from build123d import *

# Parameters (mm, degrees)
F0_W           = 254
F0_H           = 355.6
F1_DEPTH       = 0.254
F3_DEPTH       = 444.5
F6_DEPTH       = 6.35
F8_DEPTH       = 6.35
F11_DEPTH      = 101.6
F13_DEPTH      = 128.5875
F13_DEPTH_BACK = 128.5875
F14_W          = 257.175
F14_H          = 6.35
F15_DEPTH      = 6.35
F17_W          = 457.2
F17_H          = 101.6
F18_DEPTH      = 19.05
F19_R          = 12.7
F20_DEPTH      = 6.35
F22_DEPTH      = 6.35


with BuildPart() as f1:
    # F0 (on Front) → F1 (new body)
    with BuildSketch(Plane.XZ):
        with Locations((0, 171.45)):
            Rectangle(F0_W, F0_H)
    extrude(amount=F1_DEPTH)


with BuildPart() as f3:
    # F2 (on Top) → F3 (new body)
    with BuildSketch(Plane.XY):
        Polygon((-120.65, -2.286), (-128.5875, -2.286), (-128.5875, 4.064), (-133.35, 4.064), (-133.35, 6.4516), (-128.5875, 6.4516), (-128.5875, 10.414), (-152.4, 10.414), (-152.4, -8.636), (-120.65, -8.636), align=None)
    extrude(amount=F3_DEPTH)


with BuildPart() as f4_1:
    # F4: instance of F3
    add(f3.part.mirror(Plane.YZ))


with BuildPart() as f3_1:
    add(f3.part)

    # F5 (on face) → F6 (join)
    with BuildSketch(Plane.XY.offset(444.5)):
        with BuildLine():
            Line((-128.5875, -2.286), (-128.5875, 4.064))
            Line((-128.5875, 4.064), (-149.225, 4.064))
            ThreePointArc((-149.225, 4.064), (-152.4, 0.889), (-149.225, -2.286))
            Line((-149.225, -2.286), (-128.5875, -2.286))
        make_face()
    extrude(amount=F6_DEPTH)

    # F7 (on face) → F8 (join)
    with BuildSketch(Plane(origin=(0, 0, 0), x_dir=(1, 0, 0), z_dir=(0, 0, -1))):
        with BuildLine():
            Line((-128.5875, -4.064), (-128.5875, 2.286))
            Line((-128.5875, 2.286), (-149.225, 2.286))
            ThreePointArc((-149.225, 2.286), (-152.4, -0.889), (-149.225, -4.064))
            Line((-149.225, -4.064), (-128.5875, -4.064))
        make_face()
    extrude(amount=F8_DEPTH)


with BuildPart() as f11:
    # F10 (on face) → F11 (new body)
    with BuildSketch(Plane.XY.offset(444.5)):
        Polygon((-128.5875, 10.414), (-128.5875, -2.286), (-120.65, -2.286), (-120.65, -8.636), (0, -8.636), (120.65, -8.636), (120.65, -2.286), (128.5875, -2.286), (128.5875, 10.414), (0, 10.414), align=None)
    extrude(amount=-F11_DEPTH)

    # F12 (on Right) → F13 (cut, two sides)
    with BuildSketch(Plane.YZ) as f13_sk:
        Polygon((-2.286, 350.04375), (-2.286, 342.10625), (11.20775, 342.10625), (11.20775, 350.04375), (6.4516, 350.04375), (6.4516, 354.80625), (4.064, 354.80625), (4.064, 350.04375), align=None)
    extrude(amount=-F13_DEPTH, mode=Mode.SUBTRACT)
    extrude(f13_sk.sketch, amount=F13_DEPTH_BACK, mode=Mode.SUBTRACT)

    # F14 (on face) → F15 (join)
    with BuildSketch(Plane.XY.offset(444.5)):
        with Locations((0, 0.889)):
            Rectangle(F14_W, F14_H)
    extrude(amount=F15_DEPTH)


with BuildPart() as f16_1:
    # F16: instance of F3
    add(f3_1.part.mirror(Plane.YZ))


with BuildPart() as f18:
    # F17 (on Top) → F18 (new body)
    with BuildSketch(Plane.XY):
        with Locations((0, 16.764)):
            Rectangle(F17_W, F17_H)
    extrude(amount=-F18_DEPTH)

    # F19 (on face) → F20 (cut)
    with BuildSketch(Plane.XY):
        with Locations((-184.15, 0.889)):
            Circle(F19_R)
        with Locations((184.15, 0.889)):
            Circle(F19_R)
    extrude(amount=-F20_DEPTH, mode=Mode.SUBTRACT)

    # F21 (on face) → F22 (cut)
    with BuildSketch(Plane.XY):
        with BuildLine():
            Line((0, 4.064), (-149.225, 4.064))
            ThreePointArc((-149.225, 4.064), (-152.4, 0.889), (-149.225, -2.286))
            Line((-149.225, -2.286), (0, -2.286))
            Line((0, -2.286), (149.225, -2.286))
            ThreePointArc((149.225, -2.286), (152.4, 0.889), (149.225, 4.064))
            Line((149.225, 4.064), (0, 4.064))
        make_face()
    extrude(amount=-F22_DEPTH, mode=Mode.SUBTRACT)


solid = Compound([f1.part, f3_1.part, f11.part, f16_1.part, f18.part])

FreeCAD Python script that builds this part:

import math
import FreeCAD as App
import Part
import Sketcher
Q = App.Units.Quantity


def add_polygon(sketch, points):
    """Adds a closed chain of lines whose ends are joined by coincident constraints."""
    first, n = sketch.GeometryCount, len(points)
    for a, b in zip(points, points[1:] + points[:1]):
        sketch.addGeometry(Part.LineSegment(App.Vector(*a, 0), App.Vector(*b, 0)), False)
    for i in range(n):
        sketch.addConstraint(Sketcher.Constraint("Coincident", first + i, 2, first + (i + 1) % n, 1))

doc = App.newDocument("Part")
params = doc.addObject("Spreadsheet::Sheet", "Params")
for row, (alias, value) in enumerate([
    ("sketch1_width", "10 in"),
    ("sketch1_height", "14 in"),
    ("pad1_length", "0.01 in"),
    ("sketch2_width", "1.25 in"),
    ("sketch2_height", "0.25 in"),
    ("sketch2_height2", "0.75 in"),
    ("sketch2_width2", "0.3125 in"),
    ("sketch2_height3", "0.094 in"),
    ("pad2_length", "17.5 in"),
    ("sketch3_radius", "0.125 in"),
    ("sketch3_width", "0.8125 in"),
    ("pad3_length", "0.25 in"),
    ("sketch4_radius", "0.125 in"),
    ("sketch4_width", "0.8125 in"),
    ("pad4_length", "0.25 in"),
    ("sketch5_width", "9.5 in"),
    ("sketch5_height", "0.5 in"),
    ("sketch5_height2", "0.25 in"),
    ("sketch5_width2", "0.3125 in"),
    ("pad5_length", "4 in"),
    ("sketch6_width", "0.25 in"),
    ("sketch6_width2", "0.53125 in"),
    ("sketch6_width3", "0.094 in"),
    ("sketch6_height", "0.3125 in"),
    ("sketch7_height", "0.25 in"),
    ("sketch7_width", "10.125 in"),
    ("pad6_length", "0.25 in"),
    ("sketch8_width", "18 in"),
    ("sketch8_height", "4 in"),
    ("pad7_length", "0.75 in"),
    ("sketch9_diameter", "1 in"),
    ("pocket2_length", "0.25 in"),
    ("sketch10_radius", "0.125 in"),
    ("sketch10_width", "11.75 in"),
    ("pocket3_length", "0.25 in"),
], start=1):
    params.set(f"A{row}", alias)
    params.set(f"B{row}", "=" + value)
    params.setAlias(f"B{row}", alias)

body = doc.addObject("PartDesign::Body", "Body")

# Sketch on XZ plane
sketch1 = body.newObject("Sketcher::SketchObject", "Sketch")
sketch1.AttachmentSupport = (doc.getObject("XZ_Plane"), [""])
sketch1.MapMode = "FlatFace"
add_polygon(sketch1, [(-127, 349.25), (-127, -6.35), (127, -6.35), (127, 349.25)])  # lines 0-3
sketch1.addConstraint(Sketcher.Constraint("Vertical", 0))
sketch1.addConstraint(Sketcher.Constraint("Horizontal", 1))
sketch1.addConstraint(Sketcher.Constraint("Vertical", 2))
sketch1.addConstraint(Sketcher.Constraint("Horizontal", 3))
sketch1.addConstraint(Sketcher.Constraint("DistanceX", 1, 1, 1, 2, Q("10 in")))
sketch1.addConstraint(Sketcher.Constraint("DistanceY", 0, 2, 0, 1, Q("14 in")))
sketch1.addConstraint(Sketcher.Constraint("DistanceX", 0, 2, -1, 1, Q("5 in")))
sketch1.addConstraint(Sketcher.Constraint("DistanceY", 0, 2, -1, 1, Q("0.25 in")))
sketch1.setExpression("Constraints[8]", "Params.sketch1_width")
sketch1.setExpression("Constraints[9]", "Params.sketch1_height")
pad1 = body.newObject("PartDesign::Pad", "Pad")
pad1.Profile = sketch1
pad1.setExpression("Length", "Params.pad1_length")
body2 = doc.addObject("PartDesign::Body", "Body001")

# Sketch on XY plane
sketch2 = body2.newObject("Sketcher::SketchObject", "Sketch001")
sketch2.AttachmentSupport = (doc.getObject("XY_Plane001"), [""])
sketch2.MapMode = "FlatFace"
add_polygon(sketch2, [(-120.65, -2.286), (-128.5875, -2.286), (-128.5875, 4.064), (-133.35, 4.064), (-133.35, 6.4516), (-128.5875, 6.4516), (-128.5875, 10.414), (-152.4, 10.414), (-152.4, -8.636), (-120.65, -8.636)])  # lines 0-9
sketch2.addConstraint(Sketcher.Constraint("Horizontal", 0))
sketch2.addConstraint(Sketcher.Constraint("Vertical", 1))
sketch2.addConstraint(Sketcher.Constraint("Horizontal", 2))
sketch2.addConstraint(Sketcher.Constraint("Vertical", 3))
sketch2.addConstraint(Sketcher.Constraint("Horizontal", 4))
sketch2.addConstraint(Sketcher.Constraint("Vertical", 5))
sketch2.addConstraint(Sketcher.Constraint("Horizontal", 6))
sketch2.addConstraint(Sketcher.Constraint("Vertical", 7))
sketch2.addConstraint(Sketcher.Constraint("Horizontal", 8))
sketch2.addConstraint(Sketcher.Constraint("Vertical", 9))
sketch2.addConstraint(Sketcher.Constraint("Vertical", 1, 2, 4, 2))
sketch2.addConstraint(Sketcher.Constraint("Equal", 1, 9))
sketch2.addConstraint(Sketcher.Constraint("DistanceX", 6, 2, -1, 1, Q("6 in")))
sketch2.addConstraint(Sketcher.Constraint("DistanceX", 8, 1, 8, 2, Q("1.25 in")))
sketch2.addConstraint(Sketcher.Constraint("DistanceY", 1, 1, 1, 2, Q("0.25 in")))
sketch2.addConstraint(Sketcher.Constraint("DistanceY", 7, 2, 7, 1, Q("0.75 in")))
sketch2.addConstraint(Sketcher.Constraint("DistanceX", 2, 2, 8, 2, Q("0.5 in")))
sketch2.addConstraint(Sketcher.Constraint("DistanceX", 0, 2, 0, 1, Q("0.3125 in")))
sketch2.addConstraint(Sketcher.Constraint("DistanceY", 3, 1, 3, 2, Q("0.094 in")))
sketch2.addConstraint(Sketcher.Constraint("DistanceY", 0, 2, -1, 1, Q("0.09 in")))
sketch2.setExpression("Constraints[23]", "Params.sketch2_width")
sketch2.setExpression("Constraints[24]", "Params.sketch2_height")
sketch2.setExpression("Constraints[25]", "Params.sketch2_height2")
sketch2.setExpression("Constraints[27]", "Params.sketch2_width2")
sketch2.setExpression("Constraints[28]", "Params.sketch2_height3")
pad2 = body2.newObject("PartDesign::Pad", "Pad001")
pad2.Profile = sketch2
pad2.setExpression("Length", "Params.pad2_length")
body3 = doc.addObject("PartDesign::Body", "Body002")
doc.recompute()

mirroring = doc.addObject("Part::Mirroring", "Mirroring")
mirroring.Source = body2
mirroring.Base = App.Vector(0, 0, 0)
mirroring.Normal = App.Vector(1, 0, 0)
body3.BaseFeature = mirroring
doc.recompute()

# Sketch on XY plane
sketch3 = body2.newObject("Sketcher::SketchObject", "Sketch002")
sketch3.AttachmentSupport = (doc.getObject("XY_Plane001"), [""])
sketch3.MapMode = "FlatFace"
sketch3.AttachmentOffset = App.Placement(App.Vector(0, 0, 17.5 * 25.4), App.Rotation())
sketch3.addGeometry(Part.LineSegment(App.Vector(-128.5875, -2.286, 0), App.Vector(-128.5875, 4.064, 0)), False)
sketch3.addGeometry(Part.LineSegment(App.Vector(-128.5875, 4.064, 0), App.Vector(-149.225, 4.064, 0)), False)
sketch3.addGeometry(Part.ArcOfCircle(Part.Circle(App.Vector(-149.225, 0.889, 0), App.Vector(0, 0, 1), 3.175), math.radians(90), math.radians(270)), False)
sketch3.addGeometry(Part.LineSegment(App.Vector(-149.225, -2.286, 0), App.Vector(-128.5875, -2.286, 0)), False)
sketch3.addConstraint(Sketcher.Constraint("Coincident", 0, 2, 1, 1))
sketch3.addConstraint(Sketcher.Constraint("Tangent", 1, 2, 2, 1))
sketch3.addConstraint(Sketcher.Constraint("Tangent", 2, 2, 3, 1))
sketch3.addConstraint(Sketcher.Constraint("Coincident", 3, 2, 0, 1))
sketch3.addConstraint(Sketcher.Constraint("Vertical", 0))
sketch3.addConstraint(Sketcher.Constraint("Horizontal", 1))
sketch3.addConstraint(Sketcher.Constraint("Horizontal", 3))
sketch3.addConstraint(Sketcher.Constraint("Radius", 2, Q("0.125 in")))
sketch3.addConstraint(Sketcher.Constraint("DistanceX", 1, 2, 1, 1, Q("0.8125 in")))
sketch3.addConstraint(Sketcher.Constraint("DistanceY", -1, 1, 0, 2, Q("0.16 in")))
sketch3.addConstraint(Sketcher.Constraint("DistanceX", 2, 3, -1, 1, Q("5.875 in")))
sketch3.setExpression("Constraints[7]", "Params.sketch3_radius")
sketch3.setExpression("Constraints[8]", "Params.sketch3_width")
pad3 = body2.newObject("PartDesign::Pad", "Pad002")
pad3.Profile = sketch3
pad3.setExpression("Length", "Params.pad3_length")

# Sketch on XY plane
sketch4 = body2.newObject("Sketcher::SketchObject", "Sketch003")
sketch4.AttachmentSupport = (doc.getObject("XY_Plane001"), [""])
sketch4.MapMode = "FlatFace"
sketch4.addGeometry(Part.LineSegment(App.Vector(-128.5875, 4.064, 0), App.Vector(-128.5875, -2.286, 0)), False)
sketch4.addGeometry(Part.LineSegment(App.Vector(-128.5875, -2.286, 0), App.Vector(-149.225, -2.286, 0)), False)
sketch4.addGeometry(Part.ArcOfCircle(Part.Circle(App.Vector(-149.225, 0.889, 0), App.Vector(0, 0, 1), 3.175), math.radians(90), math.radians(270)), False)
sketch4.addGeometry(Part.LineSegment(App.Vector(-149.225, 4.064, 0), App.Vector(-128.5875, 4.064, 0)), False)
sketch4.addConstraint(Sketcher.Constraint("Coincident", 0, 2, 1, 1))
sketch4.addConstraint(Sketcher.Constraint("Tangent", 1, 2, 2, 2))
sketch4.addConstraint(Sketcher.Constraint("Tangent", 2, 1, 3, 1))
sketch4.addConstraint(Sketcher.Constraint("Coincident", 3, 2, 0, 1))
sketch4.addConstraint(Sketcher.Constraint("Vertical", 0))
sketch4.addConstraint(Sketcher.Constraint("Horizontal", 1))
sketch4.addConstraint(Sketcher.Constraint("Horizontal", 3))
sketch4.addConstraint(Sketcher.Constraint("Radius", 2, Q("0.125 in")))
sketch4.addConstraint(Sketcher.Constraint("DistanceX", 1, 2, 1, 1, Q("0.8125 in")))
sketch4.addConstraint(Sketcher.Constraint("DistanceY", 0, 2, -1, 1, Q("0.09 in")))
sketch4.addConstraint(Sketcher.Constraint("DistanceX", 2, 3, -1, 1, Q("5.875 in")))
sketch4.setExpression("Constraints[7]", "Params.sketch4_radius")
sketch4.setExpression("Constraints[8]", "Params.sketch4_width")
pad4 = body2.newObject("PartDesign::Pad", "Pad003")
pad4.Profile = sketch4
pad4.setExpression("Length", "Params.pad4_length")
pad4.Reversed = True
body4 = doc.addObject("PartDesign::Body", "Body003")

# Sketch on XY plane
sketch5 = body4.newObject("Sketcher::SketchObject", "Sketch004")
sketch5.AttachmentSupport = (doc.getObject("XY_Plane003"), [""])
sketch5.MapMode = "FlatFace"
sketch5.AttachmentOffset = App.Placement(App.Vector(0, 0, 17.5 * 25.4), App.Rotation())
add_polygon(sketch5, [(-128.5875, 10.414), (-128.5875, -2.286), (-120.65, -2.286), (-120.65, -8.636), (120.65, -8.636), (120.65, -2.286), (128.5875, -2.286), (128.5875, 10.414)])  # lines 0-7
sketch5.addConstraint(Sketcher.Constraint("Vertical", 0))
sketch5.addConstraint(Sketcher.Constraint("Horizontal", 1))
sketch5.addConstraint(Sketcher.Constraint("Vertical", 2))
sketch5.addConstraint(Sketcher.Constraint("Horizontal", 3))
sketch5.addConstraint(Sketcher.Constraint("Vertical", 4))
sketch5.addConstraint(Sketcher.Constraint("Horizontal", 5))
sketch5.addConstraint(Sketcher.Constraint("Vertical", 6))
sketch5.addConstraint(Sketcher.Constraint("Horizontal", 7))
sketch5.addConstraint(Sketcher.Constraint("Symmetric", 1, 2, 4, 2, -2))
sketch5.addConstraint(Sketcher.Constraint("Equal", 1, 5))
sketch5.addConstraint(Sketcher.Constraint("DistanceX", 3, 1, 3, 2, Q("9.5 in")))
sketch5.addConstraint(Sketcher.Constraint("DistanceY", 0, 2, 0, 1, Q("0.5 in")))
sketch5.addConstraint(Sketcher.Constraint("DistanceY", 2, 2, 2, 1, Q("0.25 in")))
sketch5.addConstraint(Sketcher.Constraint("DistanceX", 1, 1, 1, 2, Q("0.3125 in")))
sketch5.addConstraint(Sketcher.Constraint("DistanceY", 0, 2, -1, 1, Q("0.09 in")))
sketch5.setExpression("Constraints[18]", "Params.sketch5_width")
sketch5.setExpression("Constraints[19]", "Params.sketch5_height")
sketch5.setExpression("Constraints[20]", "Params.sketch5_height2")
sketch5.setExpression("Constraints[21]", "Params.sketch5_width2")
pad5 = body4.newObject("PartDesign::Pad", "Pad004")
pad5.Profile = sketch5
pad5.setExpression("Length", "Params.pad5_length")
pad5.Reversed = True

# Sketch on YZ plane
sketch6 = body4.newObject("Sketcher::SketchObject", "Sketch005")
sketch6.AttachmentSupport = (doc.getObject("YZ_Plane003"), [""])
sketch6.MapMode = "FlatFace"
add_polygon(sketch6, [(-2.286, 350.04375), (-2.286, 342.10625), (11.20775, 342.10625), (11.20775, 350.04375), (6.4516, 350.04375), (6.4516, 354.80625), (4.064, 354.80625), (4.064, 350.04375)])  # lines 0-7
sketch6.addConstraint(Sketcher.Constraint("Vertical", 0))
sketch6.addConstraint(Sketcher.Constraint("Horizontal", 1))
sketch6.addConstraint(Sketcher.Constraint("Vertical", 2))
sketch6.addConstraint(Sketcher.Constraint("Horizontal", 3))
sketch6.addConstraint(Sketcher.Constraint("Vertical", 4))
sketch6.addConstraint(Sketcher.Constraint("Horizontal", 5))
sketch6.addConstraint(Sketcher.Constraint("Vertical", 6))
sketch6.addConstraint(Sketcher.Constraint("Horizontal", 7))
sketch6.addConstraint(Sketcher.Constraint("Horizontal", 3, 2, 6, 2))
sketch6.addConstraint(Sketcher.Constraint("DistanceX", 7, 2, 7, 1, Q("0.25 in")))
sketch6.addConstraint(Sketcher.Constraint("DistanceY", 1, 2, 4, 2, Q("0.5 in")))
sketch6.addConstraint(Sketcher.Constraint("DistanceX", 1, 1, 1, 2, Q("0.53125 in")))
sketch6.addConstraint(Sketcher.Constraint("DistanceX", 5, 2, 5, 1, Q("0.094 in")))
sketch6.addConstraint(Sketcher.Constraint("DistanceY", 0, 2, 0, 1, Q("0.3125 in")))
sketch6.addConstraint(Sketcher.Constraint("DistanceX", 0, 2, -1, 1, Q("0.09 in")))
sketch6.addConstraint(Sketcher.Constraint("DistanceY", -1, 1, 0, 2, Q("13.46875 in")))
sketch6.setExpression("Constraints[17]", "Params.sketch6_width")
sketch6.setExpression("Constraints[19]", "Params.sketch6_width2")
sketch6.setExpression("Constraints[20]", "Params.sketch6_width3")
sketch6.setExpression("Constraints[21]", "Params.sketch6_height")
pocket1 = body4.newObject("PartDesign::Pocket", "Pocket")
pocket1.Profile = sketch6
pocket1.Type = "ThroughAll"
pocket1.Midplane = True

# Sketch on XY plane
sketch7 = body4.newObject("Sketcher::SketchObject", "Sketch006")
sketch7.AttachmentSupport = (doc.getObject("XY_Plane003"), [""])
sketch7.MapMode = "FlatFace"
sketch7.AttachmentOffset = App.Placement(App.Vector(0, 0, 17.5 * 25.4), App.Rotation())
add_polygon(sketch7, [(-128.5875, 4.064), (-128.5875, -2.286), (128.5875, -2.286), (128.5875, 4.064)])  # lines 0-3
sketch7.addConstraint(Sketcher.Constraint("Vertical", 0))
sketch7.addConstraint(Sketcher.Constraint("Horizontal", 1))
sketch7.addConstraint(Sketcher.Constraint("Vertical", 2))
sketch7.addConstraint(Sketcher.Constraint("Horizontal", 3))
sketch7.addConstraint(Sketcher.Constraint("DistanceY", 0, 2, 0, 1, Q("0.25 in")))
sketch7.addConstraint(Sketcher.Constraint("DistanceX", 1, 1, 1, 2, Q("10.125 in")))
sketch7.addConstraint(Sketcher.Constraint("DistanceY", 0, 2, -1, 1, Q("0.09 in")))
sketch7.addConstraint(Sketcher.Constraint("DistanceX", 0, 2, -1, 1, Q("5.0625 in")))
sketch7.setExpression("Constraints[8]", "Params.sketch7_height")
sketch7.setExpression("Constraints[9]", "Params.sketch7_width")
pad6 = body4.newObject("PartDesign::Pad", "Pad005")
pad6.Profile = sketch7
pad6.setExpression("Length", "Params.pad6_length")
body5 = doc.addObject("PartDesign::Body", "Body004")
doc.recompute()

mirroring2 = doc.addObject("Part::Mirroring", "Mirroring001")
mirroring2.Source = body2
mirroring2.Base = App.Vector(0, 0, 0)
mirroring2.Normal = App.Vector(1, 0, 0)
body5.BaseFeature = mirroring2
doc.recompute()
body6 = doc.addObject("PartDesign::Body", "Body005")

# Sketch on XY plane
sketch8 = body6.newObject("Sketcher::SketchObject", "Sketch007")
sketch8.AttachmentSupport = (doc.getObject("XY_Plane005"), [""])
sketch8.MapMode = "FlatFace"
add_polygon(sketch8, [(-228.6, 67.564), (-228.6, -34.036), (228.6, -34.036), (228.6, 67.564)])  # lines 0-3
sketch8.addConstraint(Sketcher.Constraint("Vertical", 0))
sketch8.addConstraint(Sketcher.Constraint("Horizontal", 1))
sketch8.addConstraint(Sketcher.Constraint("Vertical", 2))
sketch8.addConstraint(Sketcher.Constraint("Horizontal", 3))
sketch8.addConstraint(Sketcher.Constraint("DistanceX", 1, 1, 1, 2, Q("18 in")))
sketch8.addConstraint(Sketcher.Constraint("DistanceY", 0, 2, 0, 1, Q("4 in")))
sketch8.addConstraint(Sketcher.Constraint("DistanceX", 0, 2, -1, 1, Q("9 in")))
sketch8.addConstraint(Sketcher.Constraint("DistanceY", 0, 2, -1, 1, Q("1.34 in")))
sketch8.setExpression("Constraints[8]", "Params.sketch8_width")
sketch8.setExpression("Constraints[9]", "Params.sketch8_height")
pad7 = body6.newObject("PartDesign::Pad", "Pad006")
pad7.Profile = sketch8
pad7.setExpression("Length", "Params.pad7_length")
pad7.Reversed = True

# Sketch on XY plane
sketch9 = body6.newObject("Sketcher::SketchObject", "Sketch008")
sketch9.AttachmentSupport = (doc.getObject("XY_Plane005"), [""])
sketch9.MapMode = "FlatFace"
sketch9.addGeometry(Part.Circle(App.Vector(-184.15, 0.889, 0), App.Vector(0, 0, 1), 12.7), False)
sketch9.addGeometry(Part.Circle(App.Vector(184.15, 0.889, 0), App.Vector(0, 0, 1), 12.7), False)
sketch9.addConstraint(Sketcher.Constraint("Equal", 0, 1))
sketch9.addConstraint(Sketcher.Constraint("Symmetric", 0, 3, 1, 3, -2))
sketch9.addConstraint(Sketcher.Constraint("Diameter", 0, Q("1 in")))
sketch9.addConstraint(Sketcher.Constraint("DistanceX", 0, 3, 1, 3, Q("14.5 in")))
sketch9.addConstraint(Sketcher.Constraint("DistanceY", -1, 1, 0, 3, Q("0.035 in")))
sketch9.setExpression("Constraints[2]", "Params.sketch9_diameter")
pocket2 = body6.newObject("PartDesign::Pocket", "Pocket001")
pocket2.Profile = sketch9
pocket2.setExpression("Length", "Params.pocket2_length")

# Sketch on XY plane
sketch10 = body6.newObject("Sketcher::SketchObject", "Sketch009")
sketch10.AttachmentSupport = (doc.getObject("XY_Plane005"), [""])
sketch10.MapMode = "FlatFace"
sketch10.addGeometry(Part.ArcOfCircle(Part.Circle(App.Vector(-149.225, 0.889, 0), App.Vector(0, 0, 1), 3.175), math.radians(90), math.radians(270)), False)
sketch10.addGeometry(Part.LineSegment(App.Vector(-149.225, -2.286, 0), App.Vector(149.225, -2.286, 0)), False)
sketch10.addGeometry(Part.ArcOfCircle(Part.Circle(App.Vector(149.225, 0.889, 0), App.Vector(0, 0, 1), 3.175), math.radians(-90), math.radians(90)), False)
sketch10.addGeometry(Part.LineSegment(App.Vector(149.225, 4.064, 0), App.Vector(-149.225, 4.064, 0)), False)
sketch10.addConstraint(Sketcher.Constraint("Tangent", 0, 2, 1, 1))
sketch10.addConstraint(Sketcher.Constraint("Tangent", 1, 2, 2, 1))
sketch10.addConstraint(Sketcher.Constraint("Tangent", 2, 2, 3, 1))
sketch10.addConstraint(Sketcher.Constraint("Tangent", 3, 2, 0, 1))
sketch10.addConstraint(Sketcher.Constraint("Horizontal", 1))
sketch10.addConstraint(Sketcher.Constraint("Horizontal", 3))
sketch10.addConstraint(Sketcher.Constraint("Radius", 0, Q("0.125 in")))
sketch10.addConstraint(Sketcher.Constraint("DistanceX", 1, 1, 1, 2, Q("11.75 in")))
sketch10.addConstraint(Sketcher.Constraint("DistanceY", 0, 2, -1, 1, Q("0.09 in")))
sketch10.addConstraint(Sketcher.Constraint("DistanceX", 0, 3, -1, 1, Q("5.875 in")))
sketch10.setExpression("Constraints[6]", "Params.sketch10_radius")
sketch10.setExpression("Constraints[7]", "Params.sketch10_width")
pocket3 = body6.newObject("PartDesign::Pocket", "Pocket002")
pocket3.Profile = sketch10
pocket3.setExpression("Length", "Params.pocket3_length")
body3.Visibility = False
mirroring.Visibility = False
mirroring2.Visibility = False

doc.recompute()
